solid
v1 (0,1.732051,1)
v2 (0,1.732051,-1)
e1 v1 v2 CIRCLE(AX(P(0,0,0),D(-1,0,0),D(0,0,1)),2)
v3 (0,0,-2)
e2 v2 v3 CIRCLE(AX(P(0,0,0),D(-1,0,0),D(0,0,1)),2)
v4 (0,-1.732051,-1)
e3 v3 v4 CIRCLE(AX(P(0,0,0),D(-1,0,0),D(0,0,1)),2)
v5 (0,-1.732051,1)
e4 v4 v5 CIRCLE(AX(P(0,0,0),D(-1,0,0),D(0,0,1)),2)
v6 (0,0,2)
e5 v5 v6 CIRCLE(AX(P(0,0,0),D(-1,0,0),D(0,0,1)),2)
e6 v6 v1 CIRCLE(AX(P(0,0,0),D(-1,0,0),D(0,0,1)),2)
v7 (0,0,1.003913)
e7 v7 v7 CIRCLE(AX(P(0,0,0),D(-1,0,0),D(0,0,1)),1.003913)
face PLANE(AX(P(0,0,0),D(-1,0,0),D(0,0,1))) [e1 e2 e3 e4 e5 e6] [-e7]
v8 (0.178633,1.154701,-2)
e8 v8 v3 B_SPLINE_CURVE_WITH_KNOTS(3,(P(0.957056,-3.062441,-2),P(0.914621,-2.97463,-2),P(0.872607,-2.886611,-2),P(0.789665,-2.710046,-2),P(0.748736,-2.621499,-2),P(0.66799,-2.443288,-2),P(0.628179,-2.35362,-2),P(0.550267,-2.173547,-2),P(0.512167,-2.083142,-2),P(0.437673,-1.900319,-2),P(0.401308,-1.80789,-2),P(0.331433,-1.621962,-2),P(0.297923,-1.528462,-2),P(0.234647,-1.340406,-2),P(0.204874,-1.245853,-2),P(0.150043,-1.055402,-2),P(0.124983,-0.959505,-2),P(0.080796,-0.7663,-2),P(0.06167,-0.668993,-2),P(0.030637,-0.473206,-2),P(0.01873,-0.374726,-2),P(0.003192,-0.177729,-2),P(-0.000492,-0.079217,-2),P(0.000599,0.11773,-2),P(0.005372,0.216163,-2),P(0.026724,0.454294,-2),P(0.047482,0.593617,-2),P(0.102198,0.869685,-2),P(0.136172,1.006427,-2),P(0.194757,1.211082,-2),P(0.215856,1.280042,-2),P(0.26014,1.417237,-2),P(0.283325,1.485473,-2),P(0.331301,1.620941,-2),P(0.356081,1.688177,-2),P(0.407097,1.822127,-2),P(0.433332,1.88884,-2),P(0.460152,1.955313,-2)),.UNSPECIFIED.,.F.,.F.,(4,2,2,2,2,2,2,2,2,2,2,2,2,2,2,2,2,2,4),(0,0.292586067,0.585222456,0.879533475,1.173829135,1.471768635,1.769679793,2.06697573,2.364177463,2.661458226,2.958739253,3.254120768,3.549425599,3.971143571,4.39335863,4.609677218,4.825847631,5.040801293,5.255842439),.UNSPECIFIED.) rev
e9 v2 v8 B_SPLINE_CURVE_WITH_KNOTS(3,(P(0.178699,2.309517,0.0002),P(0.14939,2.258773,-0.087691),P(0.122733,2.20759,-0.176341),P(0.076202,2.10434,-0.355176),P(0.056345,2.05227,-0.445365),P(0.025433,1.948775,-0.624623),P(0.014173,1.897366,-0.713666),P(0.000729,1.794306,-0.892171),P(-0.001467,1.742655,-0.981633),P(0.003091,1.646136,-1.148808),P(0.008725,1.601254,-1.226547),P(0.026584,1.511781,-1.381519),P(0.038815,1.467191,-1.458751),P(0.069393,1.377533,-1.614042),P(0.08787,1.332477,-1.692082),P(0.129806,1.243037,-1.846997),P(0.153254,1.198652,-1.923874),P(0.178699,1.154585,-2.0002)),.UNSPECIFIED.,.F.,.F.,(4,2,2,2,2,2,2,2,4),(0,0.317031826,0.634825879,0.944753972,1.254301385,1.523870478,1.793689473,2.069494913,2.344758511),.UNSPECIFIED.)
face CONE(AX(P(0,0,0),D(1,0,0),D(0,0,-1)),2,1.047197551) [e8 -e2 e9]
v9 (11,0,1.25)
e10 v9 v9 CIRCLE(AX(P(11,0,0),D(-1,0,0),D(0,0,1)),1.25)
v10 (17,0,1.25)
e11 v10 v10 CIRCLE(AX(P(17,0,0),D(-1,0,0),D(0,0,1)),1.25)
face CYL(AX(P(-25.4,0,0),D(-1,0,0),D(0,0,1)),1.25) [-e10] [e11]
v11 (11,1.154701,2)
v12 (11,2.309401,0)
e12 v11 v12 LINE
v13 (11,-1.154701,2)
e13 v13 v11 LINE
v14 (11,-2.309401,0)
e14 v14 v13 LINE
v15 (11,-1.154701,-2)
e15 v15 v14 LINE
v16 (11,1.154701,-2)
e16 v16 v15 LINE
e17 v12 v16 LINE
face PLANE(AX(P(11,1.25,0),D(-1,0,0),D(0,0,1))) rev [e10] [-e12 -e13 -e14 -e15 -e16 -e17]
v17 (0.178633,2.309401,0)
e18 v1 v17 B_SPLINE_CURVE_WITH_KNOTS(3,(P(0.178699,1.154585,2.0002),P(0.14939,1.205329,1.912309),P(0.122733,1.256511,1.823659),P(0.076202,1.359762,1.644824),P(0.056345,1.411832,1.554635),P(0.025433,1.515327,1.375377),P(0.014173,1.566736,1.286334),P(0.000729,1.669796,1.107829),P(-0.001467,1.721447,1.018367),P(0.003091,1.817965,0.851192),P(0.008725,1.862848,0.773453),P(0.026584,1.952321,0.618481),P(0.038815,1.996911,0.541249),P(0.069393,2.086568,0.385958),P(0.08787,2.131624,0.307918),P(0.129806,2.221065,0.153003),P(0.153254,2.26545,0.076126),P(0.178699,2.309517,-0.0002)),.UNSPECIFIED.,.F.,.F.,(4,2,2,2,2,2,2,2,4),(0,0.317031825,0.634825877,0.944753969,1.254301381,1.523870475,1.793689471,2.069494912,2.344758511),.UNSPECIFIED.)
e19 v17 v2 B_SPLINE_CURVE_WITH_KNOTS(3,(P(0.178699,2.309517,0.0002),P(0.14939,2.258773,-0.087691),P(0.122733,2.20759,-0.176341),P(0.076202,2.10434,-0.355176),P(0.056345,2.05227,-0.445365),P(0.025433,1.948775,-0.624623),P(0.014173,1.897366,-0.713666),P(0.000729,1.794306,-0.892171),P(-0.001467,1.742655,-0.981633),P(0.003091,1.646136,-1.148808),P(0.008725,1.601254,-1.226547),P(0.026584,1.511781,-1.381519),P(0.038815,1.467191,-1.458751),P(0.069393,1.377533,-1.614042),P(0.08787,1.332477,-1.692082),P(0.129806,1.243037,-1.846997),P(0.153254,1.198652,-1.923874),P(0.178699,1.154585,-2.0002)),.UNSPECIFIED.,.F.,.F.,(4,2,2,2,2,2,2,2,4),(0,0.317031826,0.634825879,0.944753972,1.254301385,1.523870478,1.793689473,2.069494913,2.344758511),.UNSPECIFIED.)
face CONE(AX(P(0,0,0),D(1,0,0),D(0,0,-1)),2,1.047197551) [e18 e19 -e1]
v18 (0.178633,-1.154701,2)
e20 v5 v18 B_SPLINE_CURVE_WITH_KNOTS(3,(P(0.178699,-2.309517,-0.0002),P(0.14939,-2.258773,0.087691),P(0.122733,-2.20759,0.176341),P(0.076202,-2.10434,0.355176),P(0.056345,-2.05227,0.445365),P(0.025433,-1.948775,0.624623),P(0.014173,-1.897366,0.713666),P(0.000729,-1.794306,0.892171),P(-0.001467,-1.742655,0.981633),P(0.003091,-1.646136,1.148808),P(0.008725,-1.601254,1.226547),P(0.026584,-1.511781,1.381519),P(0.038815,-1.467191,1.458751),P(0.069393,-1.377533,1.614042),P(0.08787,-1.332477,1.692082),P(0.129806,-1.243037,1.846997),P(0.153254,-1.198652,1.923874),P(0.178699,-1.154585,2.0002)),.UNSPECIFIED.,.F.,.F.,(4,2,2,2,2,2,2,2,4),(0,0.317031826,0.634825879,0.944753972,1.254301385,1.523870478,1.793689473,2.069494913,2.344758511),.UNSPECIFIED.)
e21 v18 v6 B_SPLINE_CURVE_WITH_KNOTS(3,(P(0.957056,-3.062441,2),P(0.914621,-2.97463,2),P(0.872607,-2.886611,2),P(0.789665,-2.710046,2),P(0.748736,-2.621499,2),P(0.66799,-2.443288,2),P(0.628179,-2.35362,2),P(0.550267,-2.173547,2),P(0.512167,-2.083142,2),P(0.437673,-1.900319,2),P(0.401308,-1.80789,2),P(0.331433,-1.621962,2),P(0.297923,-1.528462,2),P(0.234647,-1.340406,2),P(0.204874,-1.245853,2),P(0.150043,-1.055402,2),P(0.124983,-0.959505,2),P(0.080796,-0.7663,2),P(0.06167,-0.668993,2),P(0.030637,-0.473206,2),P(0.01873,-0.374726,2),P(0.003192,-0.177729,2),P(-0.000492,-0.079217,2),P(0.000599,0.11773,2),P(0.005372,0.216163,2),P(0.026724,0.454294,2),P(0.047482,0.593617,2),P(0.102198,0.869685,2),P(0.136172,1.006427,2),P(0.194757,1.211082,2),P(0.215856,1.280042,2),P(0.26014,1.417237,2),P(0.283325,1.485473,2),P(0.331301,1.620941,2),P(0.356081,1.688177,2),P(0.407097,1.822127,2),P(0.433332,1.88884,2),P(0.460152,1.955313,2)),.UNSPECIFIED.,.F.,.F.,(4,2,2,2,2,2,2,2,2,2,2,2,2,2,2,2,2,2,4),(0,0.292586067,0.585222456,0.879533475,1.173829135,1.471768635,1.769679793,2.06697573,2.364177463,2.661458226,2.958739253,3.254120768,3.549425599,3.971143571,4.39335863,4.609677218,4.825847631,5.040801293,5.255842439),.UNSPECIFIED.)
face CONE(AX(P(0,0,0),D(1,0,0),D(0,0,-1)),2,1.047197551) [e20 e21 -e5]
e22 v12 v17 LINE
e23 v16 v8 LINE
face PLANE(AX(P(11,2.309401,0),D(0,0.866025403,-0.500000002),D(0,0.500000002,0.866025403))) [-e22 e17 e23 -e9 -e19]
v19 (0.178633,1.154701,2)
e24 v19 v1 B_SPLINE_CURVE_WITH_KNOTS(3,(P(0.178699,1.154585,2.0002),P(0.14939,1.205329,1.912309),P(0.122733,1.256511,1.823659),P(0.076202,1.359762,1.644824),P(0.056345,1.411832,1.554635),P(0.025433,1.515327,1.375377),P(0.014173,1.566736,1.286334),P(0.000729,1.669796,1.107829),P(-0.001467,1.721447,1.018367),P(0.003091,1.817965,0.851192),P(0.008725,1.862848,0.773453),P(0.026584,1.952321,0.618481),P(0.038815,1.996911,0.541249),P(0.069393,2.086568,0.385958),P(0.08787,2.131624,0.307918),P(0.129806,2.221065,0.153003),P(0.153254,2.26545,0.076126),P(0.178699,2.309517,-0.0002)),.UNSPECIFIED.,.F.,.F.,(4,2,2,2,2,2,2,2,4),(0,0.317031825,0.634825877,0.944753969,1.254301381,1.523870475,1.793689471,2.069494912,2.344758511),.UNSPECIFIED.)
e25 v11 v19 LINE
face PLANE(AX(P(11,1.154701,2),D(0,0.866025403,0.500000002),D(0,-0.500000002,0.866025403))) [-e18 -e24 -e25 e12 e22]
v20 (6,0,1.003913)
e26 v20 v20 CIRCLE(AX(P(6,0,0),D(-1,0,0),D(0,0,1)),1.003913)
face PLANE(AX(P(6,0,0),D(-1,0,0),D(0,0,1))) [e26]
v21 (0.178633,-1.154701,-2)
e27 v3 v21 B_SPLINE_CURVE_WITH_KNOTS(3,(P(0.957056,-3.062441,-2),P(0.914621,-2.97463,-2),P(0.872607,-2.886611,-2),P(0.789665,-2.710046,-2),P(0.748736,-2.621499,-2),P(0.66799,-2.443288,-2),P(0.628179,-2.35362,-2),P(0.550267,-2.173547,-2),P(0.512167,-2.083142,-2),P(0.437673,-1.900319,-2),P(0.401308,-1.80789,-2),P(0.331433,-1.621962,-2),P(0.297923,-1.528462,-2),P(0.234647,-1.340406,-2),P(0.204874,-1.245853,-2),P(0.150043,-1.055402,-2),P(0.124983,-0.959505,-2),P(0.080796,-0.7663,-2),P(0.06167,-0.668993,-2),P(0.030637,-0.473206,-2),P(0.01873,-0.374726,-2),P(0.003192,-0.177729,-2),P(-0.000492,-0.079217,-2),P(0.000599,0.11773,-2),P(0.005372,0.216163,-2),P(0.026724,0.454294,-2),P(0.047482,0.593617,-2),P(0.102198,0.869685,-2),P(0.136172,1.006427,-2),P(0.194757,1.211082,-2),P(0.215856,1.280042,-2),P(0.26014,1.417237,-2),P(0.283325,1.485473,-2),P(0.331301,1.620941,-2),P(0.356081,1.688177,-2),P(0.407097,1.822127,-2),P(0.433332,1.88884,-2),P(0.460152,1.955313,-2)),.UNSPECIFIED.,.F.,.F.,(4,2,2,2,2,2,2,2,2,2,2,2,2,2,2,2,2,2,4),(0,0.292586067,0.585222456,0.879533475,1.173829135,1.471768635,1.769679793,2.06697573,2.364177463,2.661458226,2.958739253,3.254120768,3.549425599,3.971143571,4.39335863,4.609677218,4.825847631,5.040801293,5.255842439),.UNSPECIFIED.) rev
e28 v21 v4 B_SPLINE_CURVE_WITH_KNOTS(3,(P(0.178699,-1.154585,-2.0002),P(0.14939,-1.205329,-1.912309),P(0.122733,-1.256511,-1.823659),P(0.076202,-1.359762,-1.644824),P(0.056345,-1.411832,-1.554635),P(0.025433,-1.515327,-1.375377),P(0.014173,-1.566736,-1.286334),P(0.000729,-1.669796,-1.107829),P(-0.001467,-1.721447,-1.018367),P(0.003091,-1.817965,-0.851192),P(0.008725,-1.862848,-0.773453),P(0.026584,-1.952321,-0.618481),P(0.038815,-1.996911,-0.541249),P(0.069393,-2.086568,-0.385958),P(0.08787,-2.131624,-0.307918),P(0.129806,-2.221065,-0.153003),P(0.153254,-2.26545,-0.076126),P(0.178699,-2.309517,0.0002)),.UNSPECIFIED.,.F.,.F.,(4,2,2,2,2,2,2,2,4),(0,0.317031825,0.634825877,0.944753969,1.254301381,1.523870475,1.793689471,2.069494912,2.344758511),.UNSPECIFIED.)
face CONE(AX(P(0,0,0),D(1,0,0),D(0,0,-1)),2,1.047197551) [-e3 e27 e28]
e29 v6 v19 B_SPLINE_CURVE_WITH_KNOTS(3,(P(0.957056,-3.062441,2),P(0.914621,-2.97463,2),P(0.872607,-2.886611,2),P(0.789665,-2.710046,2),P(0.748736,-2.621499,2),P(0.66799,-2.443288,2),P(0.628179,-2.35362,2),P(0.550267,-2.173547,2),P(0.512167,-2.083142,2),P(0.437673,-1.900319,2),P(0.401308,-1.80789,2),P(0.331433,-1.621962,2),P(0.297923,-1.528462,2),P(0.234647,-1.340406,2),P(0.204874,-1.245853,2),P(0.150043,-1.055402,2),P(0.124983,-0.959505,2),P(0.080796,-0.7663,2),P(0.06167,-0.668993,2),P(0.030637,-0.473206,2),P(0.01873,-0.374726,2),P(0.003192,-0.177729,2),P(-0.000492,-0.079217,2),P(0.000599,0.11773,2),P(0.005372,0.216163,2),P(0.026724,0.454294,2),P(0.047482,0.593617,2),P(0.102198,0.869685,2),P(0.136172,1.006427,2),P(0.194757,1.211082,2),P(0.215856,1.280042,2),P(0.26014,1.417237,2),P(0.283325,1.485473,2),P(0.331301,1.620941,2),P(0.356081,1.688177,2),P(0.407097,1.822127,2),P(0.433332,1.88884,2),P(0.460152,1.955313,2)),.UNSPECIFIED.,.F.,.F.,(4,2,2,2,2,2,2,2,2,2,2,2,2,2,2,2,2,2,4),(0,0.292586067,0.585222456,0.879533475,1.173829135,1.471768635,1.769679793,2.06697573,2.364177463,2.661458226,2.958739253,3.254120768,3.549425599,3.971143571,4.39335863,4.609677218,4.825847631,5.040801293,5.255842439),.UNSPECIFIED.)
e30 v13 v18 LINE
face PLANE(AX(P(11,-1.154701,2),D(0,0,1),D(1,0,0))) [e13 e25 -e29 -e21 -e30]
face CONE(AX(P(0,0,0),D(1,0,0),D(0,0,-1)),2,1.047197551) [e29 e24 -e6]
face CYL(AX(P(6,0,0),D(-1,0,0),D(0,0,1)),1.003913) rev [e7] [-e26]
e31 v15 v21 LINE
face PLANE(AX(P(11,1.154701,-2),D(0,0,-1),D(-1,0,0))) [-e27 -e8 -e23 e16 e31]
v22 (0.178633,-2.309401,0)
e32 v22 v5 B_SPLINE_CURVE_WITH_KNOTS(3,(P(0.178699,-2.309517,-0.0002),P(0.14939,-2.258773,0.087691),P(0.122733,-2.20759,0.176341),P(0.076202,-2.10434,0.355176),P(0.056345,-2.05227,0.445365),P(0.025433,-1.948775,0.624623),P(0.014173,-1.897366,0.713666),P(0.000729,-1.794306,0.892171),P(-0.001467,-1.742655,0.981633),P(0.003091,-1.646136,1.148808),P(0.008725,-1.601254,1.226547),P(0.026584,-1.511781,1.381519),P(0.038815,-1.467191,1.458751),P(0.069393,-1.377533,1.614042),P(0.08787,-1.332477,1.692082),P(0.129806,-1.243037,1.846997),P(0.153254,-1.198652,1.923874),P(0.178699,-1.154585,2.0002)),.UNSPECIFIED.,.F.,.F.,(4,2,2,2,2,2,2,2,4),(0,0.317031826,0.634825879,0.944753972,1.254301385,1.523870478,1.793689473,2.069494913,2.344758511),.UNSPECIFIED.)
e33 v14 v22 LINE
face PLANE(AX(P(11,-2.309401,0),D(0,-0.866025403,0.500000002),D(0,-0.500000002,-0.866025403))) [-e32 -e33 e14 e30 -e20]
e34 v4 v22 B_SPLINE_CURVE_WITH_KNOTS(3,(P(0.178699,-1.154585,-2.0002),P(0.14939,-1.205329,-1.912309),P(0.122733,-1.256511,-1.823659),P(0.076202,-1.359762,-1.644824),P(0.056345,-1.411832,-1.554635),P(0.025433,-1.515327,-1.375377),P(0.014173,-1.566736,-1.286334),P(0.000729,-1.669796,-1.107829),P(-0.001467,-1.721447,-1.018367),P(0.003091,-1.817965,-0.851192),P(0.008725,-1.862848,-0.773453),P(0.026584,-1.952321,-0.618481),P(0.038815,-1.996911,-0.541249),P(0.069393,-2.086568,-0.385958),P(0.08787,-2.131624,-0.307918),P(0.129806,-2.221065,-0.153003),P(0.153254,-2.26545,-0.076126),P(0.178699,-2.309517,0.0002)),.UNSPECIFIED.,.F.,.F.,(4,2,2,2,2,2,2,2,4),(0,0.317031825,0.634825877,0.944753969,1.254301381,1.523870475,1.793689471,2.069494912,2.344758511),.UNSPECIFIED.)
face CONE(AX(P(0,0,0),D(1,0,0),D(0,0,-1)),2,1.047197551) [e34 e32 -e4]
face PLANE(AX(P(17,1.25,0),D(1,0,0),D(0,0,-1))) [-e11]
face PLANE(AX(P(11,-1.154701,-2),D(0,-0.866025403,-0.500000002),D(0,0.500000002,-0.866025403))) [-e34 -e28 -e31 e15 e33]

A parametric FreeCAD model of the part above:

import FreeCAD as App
import Part
import Sketcher

V = App.Vector
Q = App.Units.Quantity


def add_polygon(sketch, points):
    """Adds a closed chain of lines whose ends are joined by coincident constraints."""
    first, n = sketch.GeometryCount, len(points)
    for a, b in zip(points, points[1:] + points[:1]):
        sketch.addGeometry(Part.LineSegment(App.Vector(*a, 0), App.Vector(*b, 0)), False)
    for i in range(n):
        sketch.addConstraint(Sketcher.Constraint("Coincident", first + i, 2, first + (i + 1) % n, 1))

doc = App.newDocument("Part")
params = doc.addObject("Spreadsheet::Sheet", "Params")
for row, (alias, value) in enumerate([
    ("sketch1_width", "17 mm"),
    ("sketch1_width2", "6 mm"),
    ("sketch1_height", "2 mm"),
    ("sketch1_height2", "1.25 mm"),
    ("revolution_angle", "360 deg"),
    ("pocket1_length", "11 mm"),
    ("pocket2_length", "6 mm"),
], start=1):
    params.set(f"A{row}", alias)
    params.set(f"B{row}", "=" + value)
    params.setAlias(f"B{row}", alias)

body = doc.addObject("PartDesign::Body", "Body")

# Sketch on XY plane
sketch1 = body.newObject("Sketcher::SketchObject", "Sketch")
sketch1.AttachmentSupport = (doc.getObject("XY_Plane"), [""])
sketch1.MapMode = "FlatFace"
add_polygon(sketch1, [(11, 1.25), (11, 2.31), (0.18, 2.31), (0, 2), (0, 0), (17, 0), (17, 1.25)])  # lines 0-6
sketch1.addConstraint([
    Sketcher.Constraint("Vertical", 0),
    Sketcher.Constraint("Horizontal", 1),
    Sketcher.Constraint("Vertical", 3),
    Sketcher.Constraint("Horizontal", 4),
    Sketcher.Constraint("Vertical", 5),
    Sketcher.Constraint("Horizontal", 6),
    Sketcher.Constraint("Coincident", 3, 2, -1, 1),
    Sketcher.Constraint("DistanceX", 4, 1, 4, 2, Q("17 mm")),
    Sketcher.Constraint("DistanceX", 6, 2, 6, 1, Q("6 mm")),
    Sketcher.Constraint("DistanceY", 3, 2, 3, 1, Q("2 mm")),
    Sketcher.Constraint("Angle", 2, Q("-120 deg")),
    Sketcher.Constraint("DistanceY", 5, 1, 5, 2, Q("1.25 mm")),
    Sketcher.Constraint("DistanceX", 1, 2, 1, 1, Q("10.821328 mm")),
])
sketch1.setExpression("Constraints[14]", "Params.sketch1_width")
sketch1.setExpression("Constraints[15]", "Params.sketch1_width2")
sketch1.setExpression("Constraints[16]", "Params.sketch1_height")
sketch1.setExpression("Constraints[18]", "Params.sketch1_height2")
revolution = body.newObject("PartDesign::Revolution", "Revolution")
revolution.Profile = sketch1
revolution.ReferenceAxis = (sketch1, ["H_Axis"])
revolution.setExpression("Angle", "Params.revolution_angle")

# Sketch on YZ plane
sketch2 = body.newObject("Sketcher::SketchObject", "Sketch001")
sketch2.AttachmentSupport = (doc.getObject("YZ_Plane"), [""])
sketch2.MapMode = "FlatFace"
sketch2.addGeometry(Part.Circle(V(0, 0, 0), V(0, 0, 1), 2.3), False)  # 0
add_polygon(sketch2, [(-1.2, 2), (1.2, 2), (2.3, 0), (1.2, -2), (-1.2, -2), (-2.3, 0)])  # lines 1-6
sketch2.addConstraint([
    Sketcher.Constraint("Horizontal", 1),
    Sketcher.Constraint("Horizontal", 4),
    Sketcher.Constraint("Coincident", 0, 3, -1, 1),
    Sketcher.Constraint("Symmetric", 1, 2, 4, 2, -1, 1),
    Sketcher.Constraint("Symmetric", 2, 2, 5, 2, -1, 1),
    Sketcher.Constraint("PointOnObject", 2, 2, -1),
    Sketcher.Constraint("Parallel", 3, 6),
    Sketcher.Constraint("Vertical", 1, 2, 3, 2),
    Sketcher.Constraint("Angle", 2, Q("-60 deg")),
    Sketcher.Constraint("DistanceY", -1, 1, 1, 2, Q("2 mm")),
    Sketcher.Constraint("Diameter", 0, Q("4.665127 mm")),
    Sketcher.Constraint("DistanceX", 1, 1, 1, 2, Q("2.309401 mm")),
])
pocket1 = body.newObject("PartDesign::Pocket", "Pocket")
pocket1.Profile = sketch2
pocket1.setExpression("Length", "Params.pocket1_length")
pocket1.Reversed = True

# Sketch on YZ plane
sketch3 = body.newObject("Sketcher::SketchObject", "Sketch002")
sketch3.AttachmentSupport = (doc.getObject("YZ_Plane"), [""])
sketch3.MapMode = "FlatFace"
sketch3.addGeometry(Part.Circle(V(0, 0, 0), V(0, 0, 1), 1), False)
sketch3.addConstraint([
    Sketcher.Constraint("Coincident", 0, 3, -1, 1),
    Sketcher.Constraint("Diameter", 0, Q("2.007826 mm")),
])
pocket2 = body.newObject("PartDesign::Pocket", "Pocket001")
pocket2.Profile = sketch3
pocket2.setExpression("Length", "Params.pocket2_length")
pocket2.Reversed = True

doc.recompute()
